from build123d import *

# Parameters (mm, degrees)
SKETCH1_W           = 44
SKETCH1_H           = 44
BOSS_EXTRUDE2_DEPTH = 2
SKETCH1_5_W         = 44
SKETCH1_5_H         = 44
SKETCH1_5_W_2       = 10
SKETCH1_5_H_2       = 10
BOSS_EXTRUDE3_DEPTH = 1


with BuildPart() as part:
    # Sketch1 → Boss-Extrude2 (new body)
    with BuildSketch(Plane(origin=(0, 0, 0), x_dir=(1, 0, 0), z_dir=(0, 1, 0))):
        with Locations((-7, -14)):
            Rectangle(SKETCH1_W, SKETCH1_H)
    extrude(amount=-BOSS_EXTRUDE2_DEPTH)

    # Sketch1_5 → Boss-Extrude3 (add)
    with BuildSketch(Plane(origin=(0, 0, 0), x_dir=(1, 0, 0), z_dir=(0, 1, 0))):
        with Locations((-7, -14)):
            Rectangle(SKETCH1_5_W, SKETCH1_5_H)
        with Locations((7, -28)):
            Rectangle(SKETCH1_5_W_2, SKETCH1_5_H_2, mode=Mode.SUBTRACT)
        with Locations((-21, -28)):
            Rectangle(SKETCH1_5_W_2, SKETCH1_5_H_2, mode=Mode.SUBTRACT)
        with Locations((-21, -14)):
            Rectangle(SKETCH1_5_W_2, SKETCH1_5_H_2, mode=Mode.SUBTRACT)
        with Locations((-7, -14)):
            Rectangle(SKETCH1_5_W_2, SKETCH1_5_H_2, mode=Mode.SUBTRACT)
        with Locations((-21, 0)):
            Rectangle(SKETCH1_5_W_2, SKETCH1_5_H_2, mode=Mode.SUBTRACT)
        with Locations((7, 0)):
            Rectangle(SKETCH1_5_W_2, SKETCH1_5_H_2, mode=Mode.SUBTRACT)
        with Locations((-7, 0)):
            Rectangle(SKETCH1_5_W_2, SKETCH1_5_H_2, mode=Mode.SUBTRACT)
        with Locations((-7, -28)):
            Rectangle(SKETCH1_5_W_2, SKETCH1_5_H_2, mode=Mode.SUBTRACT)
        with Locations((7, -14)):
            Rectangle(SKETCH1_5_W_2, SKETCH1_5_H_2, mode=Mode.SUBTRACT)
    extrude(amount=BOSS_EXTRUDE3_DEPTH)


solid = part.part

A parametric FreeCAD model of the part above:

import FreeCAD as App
import Part
import Sketcher

V = App.Vector
Q = App.Units.Quantity


def add_polygon(sketch, points):
    """Adds a closed chain of lines whose ends are joined by coincident constraints."""
    first, n = sketch.GeometryCount, len(points)
    for a, b in zip(points, points[1:] + points[:1]):
        sketch.addGeometry(Part.LineSegment(App.Vector(*a, 0), App.Vector(*b, 0)), False)
    for i in range(n):
        sketch.addConstraint(Sketcher.Constraint("Coincident", first + i, 2, first + (i + 1) % n, 1))

doc = App.newDocument("Part")
body = doc.addObject("PartDesign::Body", "Body")

# Sketch on XZ plane
sketch1 = body.newObject("Sketcher::SketchObject", "Sketch")
sketch1.AttachmentSupport = (doc.getObject("XZ_Plane"), [""])
sketch1.MapMode = "FlatFace"
add_polygon(sketch1, [(-29, -8), (-29, 36), (15, 36), (15, -8)])  # lines 0-3
sketch1.addConstraint(Sketcher.Constraint("Vertical", 0))
sketch1.addConstraint(Sketcher.Constraint("Horizontal", 1))
sketch1.addConstraint(Sketcher.Constraint("Vertical", 2))
sketch1.addConstraint(Sketcher.Constraint("Horizontal", 3))
sketch1.addConstraint(Sketcher.Constraint("Equal", 3, 0))
sketch1.addConstraint(Sketcher.Constraint("DistanceX", 1, 1, 1, 2, Q("44 mm")))
sketch1.addConstraint(Sketcher.Constraint("DistanceX", 0, 2, -1, 1, Q("29 mm")))
sketch1.addConstraint(Sketcher.Constraint("DistanceY", -1, 1, 0, 2, Q("36 mm")))
pad1 = body.newObject("PartDesign::Pad", "Pad")
pad1.Profile = sketch1
pad1.Length = 2

# Sketch on XZ plane
sketch2 = body.newObject("Sketcher::SketchObject", "Sketch001")
sketch2.AttachmentSupport = (doc.getObject("XZ_Plane"), [""])
sketch2.MapMode = "FlatFace"
add_polygon(sketch2, [(-29, -8), (-29, 36), (15, 36), (15, -8)])  # lines 0-3
add_polygon(sketch2, [(-16, 33), (-26, 33), (-26, 23), (-16, 23)])  # lines 4-7
add_polygon(sketch2, [(-2, 33), (-12, 33), (-12, 23), (-2, 23)])  # lines 8-11
add_polygon(sketch2, [(12, 33), (2, 33), (2, 23), (12, 23)])  # lines 12-15
add_polygon(sketch2, [(-16, 19), (-26, 19), (-26, 9), (-16, 9)])  # lines 16-19
add_polygon(sketch2, [(-16, 5), (-26, 5), (-26, -5), (-16, -5)])  # lines 20-23
add_polygon(sketch2, [(-2, 19), (-12, 19), (-12, 9), (-2, 9)])  # lines 24-27
add_polygon(sketch2, [(12, 19), (2, 19), (2, 9), (12, 9)])  # lines 28-31
add_polygon(sketch2, [(-2, 5), (-12, 5), (-12, -5), (-2, -5)])  # lines 32-35
add_polygon(sketch2, [(12, 5), (2, 5), (2, -5), (12, -5)])  # lines 36-39
sketch2.addConstraint(Sketcher.Constraint("Vertical", 0))
sketch2.addConstraint(Sketcher.Constraint("Horizontal", 1))
sketch2.addConstraint(Sketcher.Constraint("Vertical", 2))
sketch2.addConstraint(Sketcher.Constraint("Horizontal", 3))
sketch2.addConstraint(Sketcher.Constraint("Horizontal", 4))
sketch2.addConstraint(Sketcher.Constraint("Vertical", 5))
sketch2.addConstraint(Sketcher.Constraint("Horizontal", 6))
sketch2.addConstraint(Sketcher.Constraint("Vertical", 7))
sketch2.addConstraint(Sketcher.Constraint("Horizontal", 8))
sketch2.addConstraint(Sketcher.Constraint("Vertical", 9))
sketch2.addConstraint(Sketcher.Constraint("Horizontal", 10))
sketch2.addConstraint(Sketcher.Constraint("Vertical", 11))
sketch2.addConstraint(Sketcher.Constraint("Horizontal", 12))
sketch2.addConstraint(Sketcher.Constraint("Vertical", 13))
sketch2.addConstraint(Sketcher.Constraint("Horizontal", 14))
sketch2.addConstraint(Sketcher.Constraint("Vertical", 15))
sketch2.addConstraint(Sketcher.Constraint("Horizontal", 16))
sketch2.addConstraint(Sketcher.Constraint("Vertical", 17))
sketch2.addConstraint(Sketcher.Constraint("Horizontal", 18))
sketch2.addConstraint(Sketcher.Constraint("Vertical", 19))
sketch2.addConstraint(Sketcher.Constraint("Horizontal", 20))
sketch2.addConstraint(Sketcher.Constraint("Vertical", 21))
sketch2.addConstraint(Sketcher.Constraint("Horizontal", 22))
sketch2.addConstraint(Sketcher.Constraint("Vertical", 23))
sketch2.addConstraint(Sketcher.Constraint("Horizontal", 24))
sketch2.addConstraint(Sketcher.Constraint("Vertical", 25))
sketch2.addConstraint(Sketcher.Constraint("Horizontal", 26))
sketch2.addConstraint(Sketcher.Constraint("Vertical", 27))
sketch2.addConstraint(Sketcher.Constraint("Horizontal", 28))
sketch2.addConstraint(Sketcher.Constraint("Vertical", 29))
sketch2.addConstraint(Sketcher.Constraint("Horizontal", 30))
sketch2.addConstraint(Sketcher.Constraint("Vertical", 31))
sketch2.addConstraint(Sketcher.Constraint("Horizontal", 32))
sketch2.addConstraint(Sketcher.Constraint("Vertical", 33))
sketch2.addConstraint(Sketcher.Constraint("Horizontal", 34))
sketch2.addConstraint(Sketcher.Constraint("Vertical", 35))
sketch2.addConstraint(Sketcher.Constraint("Horizontal", 36))
sketch2.addConstraint(Sketcher.Constraint("Vertical", 37))
sketch2.addConstraint(Sketcher.Constraint("Horizontal", 38))
sketch2.addConstraint(Sketcher.Constraint("Vertical", 39))
sketch2.addConstraint(Sketcher.Constraint("Symmetric", 34, 2, 36, 2, -1, 1))
sketch2.addConstraint(Sketcher.Constraint("Symmetric", 32, 2, 38, 2, -1, 1))
sketch2.addConstraint(Sketcher.Constraint("Symmetric", 11, 2, 12, 2, -2))
sketch2.addConstraint(Sketcher.Constraint("Symmetric", 9, 2, 14, 2, -2))
sketch2.addConstraint(Sketcher.Constraint("Symmetric", 27, 2, 28, 2, -2))
sketch2.addConstraint(Sketcher.Constraint("Symmetric", 25, 2, 30, 2, -2))
sketch2.addConstraint(Sketcher.Constraint("Horizontal", 7, 2, 8, 2))
sketch2.addConstraint(Sketcher.Constraint("Horizontal", 6, 2, 9, 2))
sketch2.addConstraint(Sketcher.Constraint("Horizontal", 19, 2, 24, 2))
sketch2.addConstraint(Sketcher.Constraint("Horizontal", 18, 2, 25, 2))
sketch2.addConstraint(Sketcher.Constraint("Horizontal", 23, 2, 32, 2))
sketch2.addConstraint(Sketcher.Constraint("Horizontal", 22, 2, 33, 2))
sketch2.addConstraint(Sketcher.Constraint("Horizontal", 35, 2, 36, 2))
sketch2.addConstraint(Sketcher.Constraint("Vertical", 5, 2, 16, 2))
sketch2.addConstraint(Sketcher.Constraint("Vertical", 7, 2, 18, 2))
sketch2.addConstraint(Sketcher.Constraint("Vertical", 17, 2, 20, 2))
sketch2.addConstraint(Sketcher.Constraint("Vertical", 19, 2, 22, 2))
sketch2.addConstraint(Sketcher.Constraint("Vertical", 9, 2, 24, 2))
sketch2.addConstraint(Sketcher.Constraint("Vertical", 11, 2, 26, 2))
sketch2.addConstraint(Sketcher.Constraint("Vertical", 25, 2, 32, 2))
sketch2.addConstraint(Sketcher.Constraint("Vertical", 27, 2, 34, 2))
sketch2.addConstraint(Sketcher.Constraint("Equal", 6, 8))
sketch2.addConstraint(Sketcher.Constraint("Equal", 3, 0))
sketch2.addConstraint(Sketcher.Constraint("Equal", 38, 5))
sketch2.addConstraint(Sketcher.Constraint("Equal", 15, 17))
sketch2.addConstraint(Sketcher.Constraint("Equal", 19, 21))
sketch2.addConstraint(Sketcher.Constraint("DistanceX", 1, 1, 1, 2, Q("44 mm")))
sketch2.addConstraint(Sketcher.Constraint("DistanceX", 4, 2, 4, 1, Q("10 mm")))
sketch2.addConstraint(Sketcher.Constraint("DistanceX", 0, 2, -1, 1, Q("29 mm")))
sketch2.addConstraint(Sketcher.Constraint("DistanceY", -1, 1, 0, 2, Q("36 mm")))
sketch2.addConstraint(Sketcher.Constraint("DistanceX", 4, 2, -1, 1, Q("26 mm")))
sketch2.addConstraint(Sketcher.Constraint("DistanceY", -1, 1, 4, 2, Q("33 mm")))
sketch2.addConstraint(Sketcher.Constraint("DistanceX", 8, 2, -1, 1, Q("12 mm")))
sketch2.addConstraint(Sketcher.Constraint("DistanceY", -1, 1, 16, 2, Q("19 mm")))
pad2 = body.newObject("PartDesign::Pad", "Pad001")
pad2.Profile = sketch2
pad2.Length = 1
pad2.Reversed = True

doc.recompute()
